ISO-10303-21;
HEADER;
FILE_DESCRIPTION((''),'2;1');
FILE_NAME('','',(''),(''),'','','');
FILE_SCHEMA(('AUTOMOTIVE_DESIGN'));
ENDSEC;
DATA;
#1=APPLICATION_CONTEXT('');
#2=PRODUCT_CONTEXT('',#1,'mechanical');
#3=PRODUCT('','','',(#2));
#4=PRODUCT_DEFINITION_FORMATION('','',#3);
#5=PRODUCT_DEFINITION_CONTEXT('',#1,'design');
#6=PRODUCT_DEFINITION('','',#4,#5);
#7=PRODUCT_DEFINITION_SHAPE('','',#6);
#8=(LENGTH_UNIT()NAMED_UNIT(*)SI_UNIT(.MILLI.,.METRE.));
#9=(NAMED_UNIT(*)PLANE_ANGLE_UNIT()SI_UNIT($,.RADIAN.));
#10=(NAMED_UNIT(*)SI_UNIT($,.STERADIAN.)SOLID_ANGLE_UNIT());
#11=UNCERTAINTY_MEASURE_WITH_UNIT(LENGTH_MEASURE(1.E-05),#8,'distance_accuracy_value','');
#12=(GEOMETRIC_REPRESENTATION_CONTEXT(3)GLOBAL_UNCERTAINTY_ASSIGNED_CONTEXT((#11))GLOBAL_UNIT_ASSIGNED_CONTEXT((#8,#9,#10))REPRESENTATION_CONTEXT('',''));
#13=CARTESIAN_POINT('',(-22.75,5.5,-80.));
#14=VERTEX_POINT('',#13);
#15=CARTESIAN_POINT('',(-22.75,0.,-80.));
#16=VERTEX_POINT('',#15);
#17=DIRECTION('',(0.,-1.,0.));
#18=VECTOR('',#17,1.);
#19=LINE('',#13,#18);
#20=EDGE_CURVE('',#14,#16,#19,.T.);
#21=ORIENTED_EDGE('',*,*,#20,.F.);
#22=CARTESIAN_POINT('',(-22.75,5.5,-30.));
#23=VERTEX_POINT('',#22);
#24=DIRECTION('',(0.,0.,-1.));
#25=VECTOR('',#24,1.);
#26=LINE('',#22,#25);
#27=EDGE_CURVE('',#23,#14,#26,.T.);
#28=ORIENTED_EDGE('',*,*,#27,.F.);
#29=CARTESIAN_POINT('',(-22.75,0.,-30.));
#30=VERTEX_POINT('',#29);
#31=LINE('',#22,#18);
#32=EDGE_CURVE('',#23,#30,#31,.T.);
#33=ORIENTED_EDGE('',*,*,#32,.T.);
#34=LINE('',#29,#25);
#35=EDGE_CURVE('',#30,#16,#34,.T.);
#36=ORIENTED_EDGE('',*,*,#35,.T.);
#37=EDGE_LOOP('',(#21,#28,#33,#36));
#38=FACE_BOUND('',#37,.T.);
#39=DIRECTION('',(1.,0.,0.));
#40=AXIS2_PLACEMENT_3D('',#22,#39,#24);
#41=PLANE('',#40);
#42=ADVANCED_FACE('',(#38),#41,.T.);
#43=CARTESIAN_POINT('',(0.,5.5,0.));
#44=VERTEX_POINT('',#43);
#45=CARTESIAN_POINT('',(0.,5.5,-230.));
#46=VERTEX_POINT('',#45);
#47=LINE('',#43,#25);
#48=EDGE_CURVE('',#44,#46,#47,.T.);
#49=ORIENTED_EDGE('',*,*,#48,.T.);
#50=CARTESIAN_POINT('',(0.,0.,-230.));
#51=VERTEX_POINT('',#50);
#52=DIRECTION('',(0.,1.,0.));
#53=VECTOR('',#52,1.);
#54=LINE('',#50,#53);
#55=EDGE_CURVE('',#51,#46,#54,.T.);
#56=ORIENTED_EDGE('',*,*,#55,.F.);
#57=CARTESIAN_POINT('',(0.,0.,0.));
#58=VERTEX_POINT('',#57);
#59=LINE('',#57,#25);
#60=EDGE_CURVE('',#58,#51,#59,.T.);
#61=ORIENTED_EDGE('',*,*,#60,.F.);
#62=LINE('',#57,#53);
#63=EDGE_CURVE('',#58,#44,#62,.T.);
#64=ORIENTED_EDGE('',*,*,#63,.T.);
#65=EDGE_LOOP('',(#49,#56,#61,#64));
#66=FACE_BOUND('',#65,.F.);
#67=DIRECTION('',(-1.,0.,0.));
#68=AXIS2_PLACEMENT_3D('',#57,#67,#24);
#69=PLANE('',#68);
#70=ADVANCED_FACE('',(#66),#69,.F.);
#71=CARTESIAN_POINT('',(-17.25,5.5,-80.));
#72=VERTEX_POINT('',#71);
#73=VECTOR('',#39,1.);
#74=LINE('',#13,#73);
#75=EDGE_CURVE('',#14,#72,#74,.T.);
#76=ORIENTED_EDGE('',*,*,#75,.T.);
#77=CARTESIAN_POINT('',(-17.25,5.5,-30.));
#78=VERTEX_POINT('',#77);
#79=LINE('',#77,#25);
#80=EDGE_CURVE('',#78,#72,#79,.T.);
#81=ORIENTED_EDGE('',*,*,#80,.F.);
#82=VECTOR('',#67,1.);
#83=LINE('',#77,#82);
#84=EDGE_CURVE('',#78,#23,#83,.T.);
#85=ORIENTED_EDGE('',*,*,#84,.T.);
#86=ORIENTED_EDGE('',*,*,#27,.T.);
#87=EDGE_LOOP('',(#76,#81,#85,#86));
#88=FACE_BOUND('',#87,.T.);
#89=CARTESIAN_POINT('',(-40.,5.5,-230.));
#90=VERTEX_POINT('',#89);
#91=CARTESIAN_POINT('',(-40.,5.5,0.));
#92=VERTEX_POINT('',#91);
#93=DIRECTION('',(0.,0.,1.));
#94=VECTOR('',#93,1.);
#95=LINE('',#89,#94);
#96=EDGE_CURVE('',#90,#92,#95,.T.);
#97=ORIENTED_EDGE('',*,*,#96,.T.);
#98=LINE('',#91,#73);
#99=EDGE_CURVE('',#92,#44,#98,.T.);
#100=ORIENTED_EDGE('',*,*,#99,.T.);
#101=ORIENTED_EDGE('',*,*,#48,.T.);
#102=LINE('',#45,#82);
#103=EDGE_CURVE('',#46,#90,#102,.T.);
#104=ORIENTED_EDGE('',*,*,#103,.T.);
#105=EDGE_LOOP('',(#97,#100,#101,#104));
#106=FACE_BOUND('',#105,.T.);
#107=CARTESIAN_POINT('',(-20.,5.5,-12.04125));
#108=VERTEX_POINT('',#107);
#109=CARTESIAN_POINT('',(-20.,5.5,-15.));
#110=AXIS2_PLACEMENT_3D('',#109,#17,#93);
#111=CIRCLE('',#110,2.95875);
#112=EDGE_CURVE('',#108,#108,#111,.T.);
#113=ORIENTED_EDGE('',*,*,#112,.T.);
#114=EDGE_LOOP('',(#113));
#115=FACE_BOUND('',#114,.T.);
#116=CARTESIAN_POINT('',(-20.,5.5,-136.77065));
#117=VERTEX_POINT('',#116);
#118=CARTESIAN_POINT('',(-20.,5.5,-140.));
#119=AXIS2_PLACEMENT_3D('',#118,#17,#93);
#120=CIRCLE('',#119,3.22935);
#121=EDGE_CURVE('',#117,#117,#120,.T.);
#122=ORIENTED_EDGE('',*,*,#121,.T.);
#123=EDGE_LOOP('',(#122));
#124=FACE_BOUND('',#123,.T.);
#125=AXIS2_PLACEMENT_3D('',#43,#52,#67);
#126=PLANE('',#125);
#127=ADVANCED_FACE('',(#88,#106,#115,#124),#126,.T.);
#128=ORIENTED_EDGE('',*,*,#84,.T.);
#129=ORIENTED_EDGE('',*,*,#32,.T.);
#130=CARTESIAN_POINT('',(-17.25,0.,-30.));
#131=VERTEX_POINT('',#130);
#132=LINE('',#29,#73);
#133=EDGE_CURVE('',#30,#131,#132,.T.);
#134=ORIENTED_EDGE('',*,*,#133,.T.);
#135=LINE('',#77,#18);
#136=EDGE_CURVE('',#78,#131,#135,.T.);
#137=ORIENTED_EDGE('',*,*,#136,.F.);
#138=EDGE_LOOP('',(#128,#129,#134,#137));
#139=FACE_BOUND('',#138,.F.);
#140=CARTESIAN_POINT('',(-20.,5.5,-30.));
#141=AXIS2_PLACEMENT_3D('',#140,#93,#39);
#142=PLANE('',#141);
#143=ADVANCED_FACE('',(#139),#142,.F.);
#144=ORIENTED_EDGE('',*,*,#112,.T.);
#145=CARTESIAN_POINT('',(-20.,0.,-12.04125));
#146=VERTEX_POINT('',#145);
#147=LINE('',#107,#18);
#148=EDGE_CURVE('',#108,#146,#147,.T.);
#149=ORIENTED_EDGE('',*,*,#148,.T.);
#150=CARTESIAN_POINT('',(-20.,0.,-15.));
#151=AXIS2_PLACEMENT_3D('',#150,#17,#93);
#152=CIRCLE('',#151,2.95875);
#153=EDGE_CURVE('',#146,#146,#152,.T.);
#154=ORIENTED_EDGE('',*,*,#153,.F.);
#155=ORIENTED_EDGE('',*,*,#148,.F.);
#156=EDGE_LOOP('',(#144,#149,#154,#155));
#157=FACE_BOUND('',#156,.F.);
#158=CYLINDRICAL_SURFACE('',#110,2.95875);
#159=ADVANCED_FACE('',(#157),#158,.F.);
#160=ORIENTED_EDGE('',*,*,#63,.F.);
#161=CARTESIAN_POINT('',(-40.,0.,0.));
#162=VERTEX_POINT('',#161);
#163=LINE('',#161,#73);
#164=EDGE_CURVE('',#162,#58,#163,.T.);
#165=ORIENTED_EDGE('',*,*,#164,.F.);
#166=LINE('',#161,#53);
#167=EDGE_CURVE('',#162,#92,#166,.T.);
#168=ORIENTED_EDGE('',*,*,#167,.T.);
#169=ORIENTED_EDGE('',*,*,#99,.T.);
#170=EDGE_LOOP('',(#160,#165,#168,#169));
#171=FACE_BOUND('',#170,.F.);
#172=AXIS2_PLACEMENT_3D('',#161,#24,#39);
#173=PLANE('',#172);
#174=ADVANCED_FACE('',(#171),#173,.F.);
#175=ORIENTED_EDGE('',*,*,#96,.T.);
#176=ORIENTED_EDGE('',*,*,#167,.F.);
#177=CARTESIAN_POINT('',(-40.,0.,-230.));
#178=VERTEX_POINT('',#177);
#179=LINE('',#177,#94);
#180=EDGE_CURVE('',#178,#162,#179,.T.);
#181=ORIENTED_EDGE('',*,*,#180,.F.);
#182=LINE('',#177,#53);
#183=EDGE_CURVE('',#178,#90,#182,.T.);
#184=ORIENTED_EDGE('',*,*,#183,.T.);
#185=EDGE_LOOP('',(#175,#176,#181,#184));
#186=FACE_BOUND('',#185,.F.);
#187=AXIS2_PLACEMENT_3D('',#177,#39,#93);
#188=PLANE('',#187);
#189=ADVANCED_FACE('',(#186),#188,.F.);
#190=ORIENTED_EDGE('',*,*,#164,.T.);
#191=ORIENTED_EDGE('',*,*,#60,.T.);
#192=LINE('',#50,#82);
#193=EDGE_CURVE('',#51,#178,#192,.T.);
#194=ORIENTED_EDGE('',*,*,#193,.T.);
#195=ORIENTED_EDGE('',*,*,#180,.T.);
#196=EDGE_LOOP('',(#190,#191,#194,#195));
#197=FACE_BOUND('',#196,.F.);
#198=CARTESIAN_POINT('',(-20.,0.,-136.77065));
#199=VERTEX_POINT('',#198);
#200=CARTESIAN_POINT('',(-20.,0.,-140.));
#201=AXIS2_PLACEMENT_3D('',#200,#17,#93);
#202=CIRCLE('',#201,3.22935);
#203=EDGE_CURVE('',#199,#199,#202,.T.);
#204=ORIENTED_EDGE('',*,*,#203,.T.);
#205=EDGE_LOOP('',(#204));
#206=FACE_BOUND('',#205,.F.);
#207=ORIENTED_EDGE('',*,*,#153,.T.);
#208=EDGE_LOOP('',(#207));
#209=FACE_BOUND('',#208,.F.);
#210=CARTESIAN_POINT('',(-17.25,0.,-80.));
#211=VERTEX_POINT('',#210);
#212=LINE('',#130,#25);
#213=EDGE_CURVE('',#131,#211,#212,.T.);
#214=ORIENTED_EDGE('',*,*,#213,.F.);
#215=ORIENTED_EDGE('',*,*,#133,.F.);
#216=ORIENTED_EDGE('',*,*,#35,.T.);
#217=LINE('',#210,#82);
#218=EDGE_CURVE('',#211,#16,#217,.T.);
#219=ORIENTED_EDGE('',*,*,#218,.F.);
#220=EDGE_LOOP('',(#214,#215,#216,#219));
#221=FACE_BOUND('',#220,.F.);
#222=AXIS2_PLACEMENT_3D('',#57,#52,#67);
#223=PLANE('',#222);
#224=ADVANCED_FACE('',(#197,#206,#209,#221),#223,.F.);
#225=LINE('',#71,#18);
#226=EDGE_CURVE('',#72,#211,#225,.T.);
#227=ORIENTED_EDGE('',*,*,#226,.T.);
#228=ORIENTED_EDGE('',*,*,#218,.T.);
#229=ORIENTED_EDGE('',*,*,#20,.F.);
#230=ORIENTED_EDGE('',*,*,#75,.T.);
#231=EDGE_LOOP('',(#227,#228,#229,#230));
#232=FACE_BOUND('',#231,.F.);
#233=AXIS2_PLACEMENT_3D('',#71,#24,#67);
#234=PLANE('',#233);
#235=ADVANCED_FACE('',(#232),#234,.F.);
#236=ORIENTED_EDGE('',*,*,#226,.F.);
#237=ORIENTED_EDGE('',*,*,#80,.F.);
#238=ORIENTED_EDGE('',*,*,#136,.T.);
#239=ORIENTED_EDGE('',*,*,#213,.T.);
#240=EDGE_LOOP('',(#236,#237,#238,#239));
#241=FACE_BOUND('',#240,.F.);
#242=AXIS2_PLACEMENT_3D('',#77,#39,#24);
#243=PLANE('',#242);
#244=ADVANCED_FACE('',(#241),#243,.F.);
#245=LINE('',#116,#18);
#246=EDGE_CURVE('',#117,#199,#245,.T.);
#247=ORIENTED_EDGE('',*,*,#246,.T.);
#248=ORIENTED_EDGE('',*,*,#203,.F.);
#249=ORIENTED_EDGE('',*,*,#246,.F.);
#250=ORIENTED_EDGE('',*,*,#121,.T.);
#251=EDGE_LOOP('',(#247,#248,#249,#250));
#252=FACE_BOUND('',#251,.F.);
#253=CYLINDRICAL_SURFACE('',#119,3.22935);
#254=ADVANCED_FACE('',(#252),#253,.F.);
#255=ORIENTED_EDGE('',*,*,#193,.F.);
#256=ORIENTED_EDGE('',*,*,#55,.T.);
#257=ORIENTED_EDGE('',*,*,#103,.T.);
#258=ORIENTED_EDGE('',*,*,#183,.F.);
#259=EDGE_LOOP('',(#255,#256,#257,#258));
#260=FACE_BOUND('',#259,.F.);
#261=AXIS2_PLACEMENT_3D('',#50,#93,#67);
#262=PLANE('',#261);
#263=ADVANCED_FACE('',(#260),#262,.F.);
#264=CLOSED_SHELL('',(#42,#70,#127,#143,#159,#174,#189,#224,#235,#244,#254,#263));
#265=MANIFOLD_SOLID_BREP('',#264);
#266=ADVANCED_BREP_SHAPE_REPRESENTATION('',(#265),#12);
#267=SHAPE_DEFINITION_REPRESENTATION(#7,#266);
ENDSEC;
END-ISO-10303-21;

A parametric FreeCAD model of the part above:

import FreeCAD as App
import Part
import Sketcher
from FreeCAD import Vector
Q = App.Units.Quantity

doc = App.newDocument("Part")
body = doc.addObject("PartDesign::Body", "Body")

# Sketch on XZ plane
sketch1 = body.newObject("Sketcher::SketchObject", "Sketch")
sketch1.AttachmentSupport = (doc.getObject("XZ_Plane"), [""])
sketch1.MapMode = "FlatFace"
sketch1.addGeometry([
    Part.LineSegment(Vector(-40, 0, 0), Vector(0, 0, 0)),
    Part.LineSegment(Vector(0, 0, 0), Vector(0, -230, 0)),
    Part.LineSegment(Vector(0, -230, 0), Vector(-40, -230, 0)),
    Part.LineSegment(Vector(-40, -230, 0), Vector(-40, 0, 0)),
], False)
sketch1.addConstraint([
    Sketcher.Constraint("Coincident", 0, 2, 1, 1),
    Sketcher.Constraint("Coincident", 1, 2, 2, 1),
    Sketcher.Constraint("Coincident", 2, 2, 3, 1),
    Sketcher.Constraint("Coincident", 3, 2, 0, 1),
    Sketcher.Constraint("Horizontal", 0),
    Sketcher.Constraint("Vertical", 1),
    Sketcher.Constraint("Horizontal", 2),
    Sketcher.Constraint("Vertical", 3),
    Sketcher.Constraint("Coincident", 0, 2, -1, 1),
    Sketcher.Constraint("DistanceX", 0, 1, 0, 2, Q("40 mm")),
    Sketcher.Constraint("DistanceY", 1, 2, 1, 1, Q("230 mm")),
])
pad1 = body.newObject("PartDesign::Pad", "Pad")
pad1.Profile = sketch1
pad1.Length = 5.5
pad1.Reversed = True

# Sketch on XZ plane
sketch2 = body.newObject("Sketcher::SketchObject", "Sketch001")
sketch2.AttachmentSupport = (doc.getObject("XZ_Plane"), [""])
sketch2.MapMode = "FlatFace"
sketch2.AttachmentOffset = App.Placement(Vector(0, 0, -5.5), App.Rotation())
sketch2.addGeometry([
    Part.LineSegment(Vector(-23, -30, 0), Vector(-17, -30, 0)),
    Part.LineSegment(Vector(-17, -30, 0), Vector(-17, -80, 0)),
    Part.LineSegment(Vector(-17, -80, 0), Vector(-23, -80, 0)),
    Part.LineSegment(Vector(-23, -80, 0), Vector(-23, -30, 0)),
], False)
sketch2.addConstraint([
    Sketcher.Constraint("Coincident", 0, 2, 1, 1),
    Sketcher.Constraint("Coincident", 1, 2, 2, 1),
    Sketcher.Constraint("Coincident", 2, 2, 3, 1),
    Sketcher.Constraint("Coincident", 3, 2, 0, 1),
    Sketcher.Constraint("Horizontal", 0),
    Sketcher.Constraint("Vertical", 1),
    Sketcher.Constraint("Horizontal", 2),
    Sketcher.Constraint("Vertical", 3),
    Sketcher.Constraint("DistanceY", 1, 2, 1, 1, Q("50 mm")),
    Sketcher.Constraint("DistanceY", 0, 2, -1, 1, Q("30 mm")),
    Sketcher.Constraint("DistanceX", 0, 1, 0, 2, Q("5.5 mm")),
    Sketcher.Constraint("DistanceX", 0, 2, -1, 1, Q("17.25 mm")),
])
pocket1 = body.newObject("PartDesign::Pocket", "Pocket")
pocket1.Profile = sketch2
pocket1.Length = 5.5
pocket1.Reversed = True

# Sketch on XZ plane
sketch3 = body.newObject("Sketcher::SketchObject", "Sketch002")
sketch3.AttachmentSupport = (doc.getObject("XZ_Plane"), [""])
sketch3.MapMode = "FlatFace"
sketch3.AttachmentOffset = App.Placement(Vector(0, 0, -5.5), App.Rotation())
sketch3.addGeometry(Part.Circle(Vector(-20, -15, 0), Vector(0, 0, 1), 3), False)
sketch3.addConstraint([
    Sketcher.Constraint("DistanceX", 0, 3, -1, 1, Q("20 mm")),
    Sketcher.Constraint("DistanceY", 0, 3, -1, 1, Q("15 mm")),
    Sketcher.Constraint("Diameter", 0, Q("5.9175 mm")),
])
doc.recompute()
hole = body.newObject("PartDesign::Hole", "Hole")
hole.Profile = sketch3
hole.ThreadType = "None"
hole.Diameter = 5.9175
hole.DepthType = "Dimension"
hole.Depth = 19.1
hole.DrillPoint = "Angled"
hole.DrillPointAngle = 118
hole.Reversed = True

# Sketch on XZ plane
sketch4 = body.newObject("Sketcher::SketchObject", "Sketch003")
sketch4.AttachmentSupport = (doc.getObject("XZ_Plane"), [""])
sketch4.MapMode = "FlatFace"
sketch4.AttachmentOffset = App.Placement(Vector(0, 0, -5.5), App.Rotation())
sketch4.addGeometry(Part.Circle(Vector(-20, -140, 0), Vector(0, 0, 1), 3.2), False)
sketch4.addConstraint([
    Sketcher.Constraint("DistanceX", 0, 3, -1, 1, Q("20 mm")),
    Sketcher.Constraint("DistanceY", 0, 3, -1, 1, Q("140 mm")),
    Sketcher.Constraint("Diameter", 0, Q("6.4587 mm")),
])
doc.recompute()
hole2 = body.newObject("PartDesign::Hole", "Hole001")
hole2.Profile = sketch4
hole2.ThreadType = "None"
hole2.Diameter = 6.4587
hole2.DepthType = "Dimension"
hole2.Depth = 19.1
hole2.DrillPoint = "Angled"
hole2.DrillPointAngle = 118
hole2.Reversed = True

doc.recompute()
